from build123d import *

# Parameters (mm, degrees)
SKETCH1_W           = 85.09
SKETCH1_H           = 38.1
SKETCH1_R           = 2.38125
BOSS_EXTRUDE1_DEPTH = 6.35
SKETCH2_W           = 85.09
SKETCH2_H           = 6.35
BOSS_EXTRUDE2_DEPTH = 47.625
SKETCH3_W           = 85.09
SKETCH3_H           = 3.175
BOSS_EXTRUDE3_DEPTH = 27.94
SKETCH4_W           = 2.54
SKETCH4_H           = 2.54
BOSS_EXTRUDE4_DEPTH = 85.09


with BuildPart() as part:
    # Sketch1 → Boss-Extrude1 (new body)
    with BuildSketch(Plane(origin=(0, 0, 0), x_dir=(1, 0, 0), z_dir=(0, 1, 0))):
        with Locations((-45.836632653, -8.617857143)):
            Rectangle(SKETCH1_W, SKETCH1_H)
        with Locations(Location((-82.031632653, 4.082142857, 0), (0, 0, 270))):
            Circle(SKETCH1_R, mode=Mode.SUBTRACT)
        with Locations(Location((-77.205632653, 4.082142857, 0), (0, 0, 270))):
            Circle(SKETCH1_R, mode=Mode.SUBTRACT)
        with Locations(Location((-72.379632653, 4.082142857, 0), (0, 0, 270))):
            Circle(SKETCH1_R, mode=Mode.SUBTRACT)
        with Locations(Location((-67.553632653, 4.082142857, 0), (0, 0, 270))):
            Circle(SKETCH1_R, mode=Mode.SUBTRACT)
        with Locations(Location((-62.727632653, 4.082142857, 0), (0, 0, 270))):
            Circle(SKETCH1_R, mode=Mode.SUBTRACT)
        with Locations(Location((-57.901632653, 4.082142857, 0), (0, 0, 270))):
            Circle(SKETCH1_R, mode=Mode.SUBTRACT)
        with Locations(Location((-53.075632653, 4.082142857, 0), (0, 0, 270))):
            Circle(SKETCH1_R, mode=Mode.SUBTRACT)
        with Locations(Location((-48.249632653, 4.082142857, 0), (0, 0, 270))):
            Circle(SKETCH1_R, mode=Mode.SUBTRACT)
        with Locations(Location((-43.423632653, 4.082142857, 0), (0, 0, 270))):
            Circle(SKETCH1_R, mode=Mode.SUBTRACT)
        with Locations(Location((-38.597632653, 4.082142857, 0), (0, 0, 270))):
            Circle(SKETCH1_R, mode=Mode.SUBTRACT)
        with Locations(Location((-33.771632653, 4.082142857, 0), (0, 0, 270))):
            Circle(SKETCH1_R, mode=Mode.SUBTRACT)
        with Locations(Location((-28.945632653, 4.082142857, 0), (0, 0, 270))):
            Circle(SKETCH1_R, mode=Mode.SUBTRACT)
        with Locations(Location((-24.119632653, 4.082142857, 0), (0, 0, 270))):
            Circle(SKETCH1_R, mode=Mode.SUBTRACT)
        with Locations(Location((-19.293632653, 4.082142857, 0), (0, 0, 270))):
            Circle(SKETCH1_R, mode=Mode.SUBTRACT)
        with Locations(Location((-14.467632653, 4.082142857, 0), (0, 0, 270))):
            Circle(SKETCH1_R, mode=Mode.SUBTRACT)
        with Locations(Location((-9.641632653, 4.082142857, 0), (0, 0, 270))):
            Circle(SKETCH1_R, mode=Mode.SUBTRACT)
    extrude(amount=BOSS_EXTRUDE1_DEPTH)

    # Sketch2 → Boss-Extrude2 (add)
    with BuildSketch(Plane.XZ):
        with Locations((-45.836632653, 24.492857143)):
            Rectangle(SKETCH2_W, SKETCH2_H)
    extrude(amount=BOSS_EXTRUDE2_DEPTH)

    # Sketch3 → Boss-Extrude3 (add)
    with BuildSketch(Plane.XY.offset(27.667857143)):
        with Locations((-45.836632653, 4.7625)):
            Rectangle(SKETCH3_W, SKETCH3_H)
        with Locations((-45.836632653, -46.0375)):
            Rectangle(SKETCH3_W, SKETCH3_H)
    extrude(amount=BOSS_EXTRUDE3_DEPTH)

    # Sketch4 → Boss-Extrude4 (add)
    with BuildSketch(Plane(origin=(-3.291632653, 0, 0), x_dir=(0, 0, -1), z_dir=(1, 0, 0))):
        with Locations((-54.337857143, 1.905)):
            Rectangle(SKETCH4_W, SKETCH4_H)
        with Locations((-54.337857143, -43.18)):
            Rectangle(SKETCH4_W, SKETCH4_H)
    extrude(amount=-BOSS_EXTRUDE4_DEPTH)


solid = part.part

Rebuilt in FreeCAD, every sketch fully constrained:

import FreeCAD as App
import Part
import Sketcher
Q = App.Units.Quantity

doc = App.newDocument("Part")
body = doc.addObject("PartDesign::Body", "Body")

sketch1 = body.newObject("Sketcher::SketchObject", "Sketch")
sketch1.AttachmentSupport = (doc.getObject("XZ_Plane"), [""])
sketch1.MapMode = "FlatFace"
sketch1.addGeometry([
    Part.LineSegment(App.Vector(-88.4, -10.4, 0), App.Vector(-88.4, 27.7, 0)),
    Part.LineSegment(App.Vector(-88.4, 27.7, 0), App.Vector(-3.3, 27.7, 0)),
    Part.LineSegment(App.Vector(-3.3, 27.7, 0), App.Vector(-3.3, -10.4, 0)),
    Part.LineSegment(App.Vector(-3.3, -10.4, 0), App.Vector(-88.4, -10.4, 0)),
    Part.Circle(App.Vector(-82, -4.1, 0), App.Vector(0, 0, 1), 2.4),
    Part.Circle(App.Vector(-77.2, -4.1, 0), App.Vector(0, 0, 1), 2.4),
    Part.Circle(App.Vector(-72.4, -4.1, 0), App.Vector(0, 0, 1), 2.4),
    Part.Circle(App.Vector(-67.6, -4.1, 0), App.Vector(0, 0, 1), 2.4),
    Part.Circle(App.Vector(-62.7, -4.1, 0), App.Vector(0, 0, 1), 2.4),
    Part.Circle(App.Vector(-57.9, -4.1, 0), App.Vector(0, 0, 1), 2.4),
    Part.Circle(App.Vector(-53.1, -4.1, 0), App.Vector(0, 0, 1), 2.4),
    Part.Circle(App.Vector(-48.2, -4.1, 0), App.Vector(0, 0, 1), 2.4),
    Part.Circle(App.Vector(-43.4, -4.1, 0), App.Vector(0, 0, 1), 2.4),
    Part.Circle(App.Vector(-38.6, -4.1, 0), App.Vector(0, 0, 1), 2.4),
    Part.Circle(App.Vector(-33.8, -4.1, 0), App.Vector(0, 0, 1), 2.4),
    Part.Circle(App.Vector(-28.9, -4.1, 0), App.Vector(0, 0, 1), 2.4),
    Part.Circle(App.Vector(-24.1, -4.1, 0), App.Vector(0, 0, 1), 2.4),
    Part.Circle(App.Vector(-19.3, -4.1, 0), App.Vector(0, 0, 1), 2.4),
    Part.Circle(App.Vector(-14.5, -4.1, 0), App.Vector(0, 0, 1), 2.4),
    Part.Circle(App.Vector(-9.6, -4.1, 0), App.Vector(0, 0, 1), 2.4),
], False)
sketch1.addConstraint([
    Sketcher.Constraint("Coincident", 0, 2, 1, 1),
    Sketcher.Constraint("Coincident", 1, 2, 2, 1),
    Sketcher.Constraint("Coincident", 2, 2, 3, 1),
    Sketcher.Constraint("Coincident", 3, 2, 0, 1),
    Sketcher.Constraint("Vertical", 0),
    Sketcher.Constraint("Horizontal", 1),
    Sketcher.Constraint("Vertical", 2),
    Sketcher.Constraint("Horizontal", 3),
    Sketcher.Constraint("Equal", 4, 5),
    Sketcher.Constraint("Equal", 5, 6),
    Sketcher.Constraint("Equal", 6, 7),
    Sketcher.Constraint("Equal", 7, 8),
    Sketcher.Constraint("Equal", 8, 9),
    Sketcher.Constraint("Equal", 9, 10),
    Sketcher.Constraint("Equal", 10, 11),
    Sketcher.Constraint("Equal", 11, 12),
    Sketcher.Constraint("Equal", 12, 13),
    Sketcher.Constraint("Equal", 13, 14),
    Sketcher.Constraint("Equal", 14, 15),
    Sketcher.Constraint("Equal", 15, 16),
    Sketcher.Constraint("Equal", 16, 17),
    Sketcher.Constraint("Equal", 17, 18),
    Sketcher.Constraint("Equal", 18, 19),
    Sketcher.Constraint("Horizontal", 4, 3, 5, 3),
    Sketcher.Constraint("Horizontal", 5, 3, 6, 3),
    Sketcher.Constraint("Horizontal", 6, 3, 7, 3),
    Sketcher.Constraint("Horizontal", 7, 3, 8, 3),
    Sketcher.Constraint("Horizontal", 8, 3, 9, 3),
    Sketcher.Constraint("Horizontal", 9, 3, 10, 3),
    Sketcher.Constraint("Horizontal", 10, 3, 11, 3),
    Sketcher.Constraint("Horizontal", 11, 3, 12, 3),
    Sketcher.Constraint("Horizontal", 12, 3, 13, 3),
    Sketcher.Constraint("Horizontal", 13, 3, 14, 3),
    Sketcher.Constraint("Horizontal", 14, 3, 15, 3),
    Sketcher.Constraint("Horizontal", 15, 3, 16, 3),
    Sketcher.Constraint("Horizontal", 16, 3, 17, 3),
    Sketcher.Constraint("Horizontal", 17, 3, 18, 3),
    Sketcher.Constraint("Horizontal", 18, 3, 19, 3),
    Sketcher.Constraint("Diameter", 4, Q("0.1875 in")),
    Sketcher.Constraint("DistanceY", 0, 1, 0, 2, Q("1.5 in")),
    Sketcher.Constraint("DistanceX", 1, 1, 1, 2, Q("3.35 in")),
    Sketcher.Constraint("DistanceX", 4, 3, 5, 3, Q("0.19 in")),
    Sketcher.Constraint("DistanceX", 5, 3, 6, 3, Q("0.19 in")),
    Sketcher.Constraint("DistanceX", 6, 3, 7, 3, Q("0.19 in")),
    Sketcher.Constraint("DistanceX", 7, 3, 8, 3, Q("0.19 in")),
    Sketcher.Constraint("DistanceX", 8, 3, 9, 3, Q("0.19 in")),
    Sketcher.Constraint("DistanceX", 9, 3, 10, 3, Q("0.19 in")),
    Sketcher.Constraint("DistanceX", 10, 3, 11, 3, Q("0.19 in")),
    Sketcher.Constraint("DistanceX", 11, 3, 12, 3, Q("0.19 in")),
    Sketcher.Constraint("DistanceX", 12, 3, 13, 3, Q("0.19 in")),
    Sketcher.Constraint("DistanceX", 13, 3, 14, 3, Q("0.19 in")),
    Sketcher.Constraint("DistanceX", 14, 3, 15, 3, Q("0.19 in")),
    Sketcher.Constraint("DistanceX", 15, 3, 16, 3, Q("0.19 in")),
    Sketcher.Constraint("DistanceX", 16, 3, 17, 3, Q("0.19 in")),
    Sketcher.Constraint("DistanceX", 17, 3, 18, 3, Q("0.19 in")),
    Sketcher.Constraint("DistanceX", 18, 3, 19, 3, Q("0.19 in")),
    Sketcher.Constraint("DistanceX", 0, 2, 4, 3, Q("0.25 in")),
    Sketcher.Constraint("DistanceY", 4, 3, 0, 2, Q("1.25 in")),
    Sketcher.Constraint("DistanceX", 4, 3, -1, 1, 82.031633),
    Sketcher.Constraint("DistanceY", 4, 3, -1, 1, 4.082143),
])
pad1 = body.newObject("PartDesign::Pad", "Pad")
pad1.Profile = sketch1
pad1.Length = Q("0.25 in")
pad1.Reversed = True

sketch2 = body.newObject("Sketcher::SketchObject", "Sketch001")
sketch2.AttachmentSupport = (doc.getObject("XZ_Plane"), [""])
sketch2.MapMode = "FlatFace"
sketch2.addGeometry([
    Part.LineSegment(App.Vector(-88, 28, 0), App.Vector(-88, 21, 0)),
    Part.LineSegment(App.Vector(-88, 21, 0), App.Vector(-3, 21, 0)),
    Part.LineSegment(App.Vector(-3, 21, 0), App.Vector(-3, 28, 0)),
    Part.LineSegment(App.Vector(-3, 28, 0), App.Vector(-88, 28, 0)),
], False)
sketch2.addConstraint([
    Sketcher.Constraint("Coincident", 0, 2, 1, 1),
    Sketcher.Constraint("Coincident", 1, 2, 2, 1),
    Sketcher.Constraint("Coincident", 2, 2, 3, 1),
    Sketcher.Constraint("Coincident", 3, 2, 0, 1),
    Sketcher.Constraint("Vertical", 0),
    Sketcher.Constraint("Horizontal", 1),
    Sketcher.Constraint("Vertical", 2),
    Sketcher.Constraint("Horizontal", 3),
    Sketcher.Constraint("DistanceX", 1, 1, 1, 2, Q("3.35 in")),
    Sketcher.Constraint("DistanceY", 0, 2, 0, 1, Q("0.25 in")),
    Sketcher.Constraint("DistanceX", 0, 2, -1, 1, 88.381633),
    Sketcher.Constraint("DistanceY", -1, 1, 0, 2, 21.317857),
])
pad2 = body.newObject("PartDesign::Pad", "Pad001")
pad2.Profile = sketch2
pad2.Length = Q("1.875 in")

sketch3 = body.newObject("Sketcher::SketchObject", "Sketch002")
sketch3.AttachmentSupport = (doc.getObject("XY_Plane"), [""])
sketch3.MapMode = "FlatFace"
sketch3.AttachmentOffset = App.Placement(App.Vector(0, 0, 27.667857), App.Rotation())
sketch3.addGeometry([
    Part.LineSegment(App.Vector(-88.4, 6.3, 0), App.Vector(-88.4, 3.2, 0)),
    Part.LineSegment(App.Vector(-88.4, 3.2, 0), App.Vector(-3.3, 3.2, 0)),
    Part.LineSegment(App.Vector(-3.3, 3.2, 0), App.Vector(-3.3, 6.3, 0)),
    Part.LineSegment(App.Vector(-3.3, 6.3, 0), App.Vector(-88.4, 6.3, 0)),
    Part.LineSegment(App.Vector(-88.4, -44.5, 0), App.Vector(-88.4, -47.6, 0)),
    Part.LineSegment(App.Vector(-88.4, -47.6, 0), App.Vector(-3.3, -47.6, 0)),
    Part.LineSegment(App.Vector(-3.3, -47.6, 0), App.Vector(-3.3, -44.5, 0)),
    Part.LineSegment(App.Vector(-3.3, -44.5, 0), App.Vector(-88.4, -44.5, 0)),
], False)
sketch3.addConstraint([
    Sketcher.Constraint("Coincident", 0, 2, 1, 1),
    Sketcher.Constraint("Coincident", 1, 2, 2, 1),
    Sketcher.Constraint("Coincident", 2, 2, 3, 1),
    Sketcher.Constraint("Coincident", 3, 2, 0, 1),
    Sketcher.Constraint("Coincident", 4, 2, 5, 1),
    Sketcher.Constraint("Coincident", 5, 2, 6, 1),
    Sketcher.Constraint("Coincident", 6, 2, 7, 1),
    Sketcher.Constraint("Coincident", 7, 2, 4, 1),
    Sketcher.Constraint("Vertical", 0),
    Sketcher.Constraint("Horizontal", 1),
    Sketcher.Constraint("Vertical", 2),
    Sketcher.Constraint("Horizontal", 3),
    Sketcher.Constraint("Vertical", 4),
    Sketcher.Constraint("Horizontal", 5),
    Sketcher.Constraint("Vertical", 6),
    Sketcher.Constraint("Horizontal", 7),
    Sketcher.Constraint("Vertical", 3, 2, 4, 2),
    Sketcher.Constraint("Vertical", 2, 2, 5, 2),
    Sketcher.Constraint("Equal", 2, 4),
    Sketcher.Constraint("DistanceY", 4, 2, 0, 2, Q("2 in")),
    Sketcher.Constraint("DistanceX", 1, 1, 1, 2, Q("3.35 in")),
    Sketcher.Constraint("DistanceY", 0, 2, 0, 1, Q("0.125 in")),
    Sketcher.Constraint("DistanceY", -1, 1, 2, 2, Q("0.25 in")),
    Sketcher.Constraint("DistanceX", 0, 2, -1, 1, 88.381633),
])
pad3 = body.newObject("PartDesign::Pad", "Pad002")
pad3.Profile = sketch3
pad3.Length = Q("1.1 in")

sketch4 = body.newObject("Sketcher::SketchObject", "Sketch003")
sketch4.AttachmentSupport = (doc.getObject("YZ_Plane"), [""])
sketch4.MapMode = "FlatFace"
sketch4.AttachmentOffset = App.Placement(App.Vector(0, 0, -3.291633), App.Rotation())
sketch4.addGeometry([
    Part.LineSegment(App.Vector(3.2, 55.6, 0), App.Vector(0.6, 55.6, 0)),
    Part.LineSegment(App.Vector(0.6, 55.6, 0), App.Vector(0.6, 53.1, 0)),
    Part.LineSegment(App.Vector(0.6, 53.1, 0), App.Vector(3.2, 53.1, 0)),
    Part.LineSegment(App.Vector(3.2, 53.1, 0), App.Vector(3.2, 55.6, 0)),
    Part.LineSegment(App.Vector(-41.9, 55.6, 0), App.Vector(-44.5, 55.6, 0)),
    Part.LineSegment(App.Vector(-44.5, 55.6, 0), App.Vector(-44.5, 53.1, 0)),
    Part.LineSegment(App.Vector(-44.5, 53.1, 0), App.Vector(-41.9, 53.1, 0)),
    Part.LineSegment(App.Vector(-41.9, 53.1, 0), App.Vector(-41.9, 55.6, 0)),
], False)
sketch4.addConstraint([
    Sketcher.Constraint("Coincident", 0, 2, 1, 1),
    Sketcher.Constraint("Coincident", 1, 2, 2, 1),
    Sketcher.Constraint("Coincident", 2, 2, 3, 1),
    Sketcher.Constraint("Coincident", 3, 2, 0, 1),
    Sketcher.Constraint("Coincident", 4, 2, 5, 1),
    Sketcher.Constraint("Coincident", 5, 2, 6, 1),
    Sketcher.Constraint("Coincident", 6, 2, 7, 1),
    Sketcher.Constraint("Coincident", 7, 2, 4, 1),
    Sketcher.Constraint("Horizontal", 0),
    Sketcher.Constraint("Vertical", 1),
    Sketcher.Constraint("Horizontal", 2),
    Sketcher.Constraint("Vertical", 3),
    Sketcher.Constraint("Horizontal", 4),
    Sketcher.Constraint("Vertical", 5),
    Sketcher.Constraint("Horizontal", 6),
    Sketcher.Constraint("Vertical", 7),
    Sketcher.Constraint("Horizontal", 3, 2, 4, 2),
    Sketcher.Constraint("Horizontal", 2, 2, 5, 2),
    Sketcher.Constraint("Equal", 2, 4),
    Sketcher.Constraint("Equal", 6, 1),
    Sketcher.Constraint("DistanceX", 0, 2, 0, 1, Q("0.1 in")),
    Sketcher.Constraint("DistanceX", 4, 2, -1, 1, Q("1.75 in")),
    Sketcher.Constraint("DistanceX", -1, 1, 0, 2, Q("0.025 in")),
    Sketcher.Constraint("DistanceY", -1, 1, 0, 2, 55.607857),
])
pad4 = body.newObject("PartDesign::Pad", "Pad003")
pad4.Profile = sketch4
pad4.Length = Q("3.35 in")
pad4.Reversed = True

doc.recompute()
